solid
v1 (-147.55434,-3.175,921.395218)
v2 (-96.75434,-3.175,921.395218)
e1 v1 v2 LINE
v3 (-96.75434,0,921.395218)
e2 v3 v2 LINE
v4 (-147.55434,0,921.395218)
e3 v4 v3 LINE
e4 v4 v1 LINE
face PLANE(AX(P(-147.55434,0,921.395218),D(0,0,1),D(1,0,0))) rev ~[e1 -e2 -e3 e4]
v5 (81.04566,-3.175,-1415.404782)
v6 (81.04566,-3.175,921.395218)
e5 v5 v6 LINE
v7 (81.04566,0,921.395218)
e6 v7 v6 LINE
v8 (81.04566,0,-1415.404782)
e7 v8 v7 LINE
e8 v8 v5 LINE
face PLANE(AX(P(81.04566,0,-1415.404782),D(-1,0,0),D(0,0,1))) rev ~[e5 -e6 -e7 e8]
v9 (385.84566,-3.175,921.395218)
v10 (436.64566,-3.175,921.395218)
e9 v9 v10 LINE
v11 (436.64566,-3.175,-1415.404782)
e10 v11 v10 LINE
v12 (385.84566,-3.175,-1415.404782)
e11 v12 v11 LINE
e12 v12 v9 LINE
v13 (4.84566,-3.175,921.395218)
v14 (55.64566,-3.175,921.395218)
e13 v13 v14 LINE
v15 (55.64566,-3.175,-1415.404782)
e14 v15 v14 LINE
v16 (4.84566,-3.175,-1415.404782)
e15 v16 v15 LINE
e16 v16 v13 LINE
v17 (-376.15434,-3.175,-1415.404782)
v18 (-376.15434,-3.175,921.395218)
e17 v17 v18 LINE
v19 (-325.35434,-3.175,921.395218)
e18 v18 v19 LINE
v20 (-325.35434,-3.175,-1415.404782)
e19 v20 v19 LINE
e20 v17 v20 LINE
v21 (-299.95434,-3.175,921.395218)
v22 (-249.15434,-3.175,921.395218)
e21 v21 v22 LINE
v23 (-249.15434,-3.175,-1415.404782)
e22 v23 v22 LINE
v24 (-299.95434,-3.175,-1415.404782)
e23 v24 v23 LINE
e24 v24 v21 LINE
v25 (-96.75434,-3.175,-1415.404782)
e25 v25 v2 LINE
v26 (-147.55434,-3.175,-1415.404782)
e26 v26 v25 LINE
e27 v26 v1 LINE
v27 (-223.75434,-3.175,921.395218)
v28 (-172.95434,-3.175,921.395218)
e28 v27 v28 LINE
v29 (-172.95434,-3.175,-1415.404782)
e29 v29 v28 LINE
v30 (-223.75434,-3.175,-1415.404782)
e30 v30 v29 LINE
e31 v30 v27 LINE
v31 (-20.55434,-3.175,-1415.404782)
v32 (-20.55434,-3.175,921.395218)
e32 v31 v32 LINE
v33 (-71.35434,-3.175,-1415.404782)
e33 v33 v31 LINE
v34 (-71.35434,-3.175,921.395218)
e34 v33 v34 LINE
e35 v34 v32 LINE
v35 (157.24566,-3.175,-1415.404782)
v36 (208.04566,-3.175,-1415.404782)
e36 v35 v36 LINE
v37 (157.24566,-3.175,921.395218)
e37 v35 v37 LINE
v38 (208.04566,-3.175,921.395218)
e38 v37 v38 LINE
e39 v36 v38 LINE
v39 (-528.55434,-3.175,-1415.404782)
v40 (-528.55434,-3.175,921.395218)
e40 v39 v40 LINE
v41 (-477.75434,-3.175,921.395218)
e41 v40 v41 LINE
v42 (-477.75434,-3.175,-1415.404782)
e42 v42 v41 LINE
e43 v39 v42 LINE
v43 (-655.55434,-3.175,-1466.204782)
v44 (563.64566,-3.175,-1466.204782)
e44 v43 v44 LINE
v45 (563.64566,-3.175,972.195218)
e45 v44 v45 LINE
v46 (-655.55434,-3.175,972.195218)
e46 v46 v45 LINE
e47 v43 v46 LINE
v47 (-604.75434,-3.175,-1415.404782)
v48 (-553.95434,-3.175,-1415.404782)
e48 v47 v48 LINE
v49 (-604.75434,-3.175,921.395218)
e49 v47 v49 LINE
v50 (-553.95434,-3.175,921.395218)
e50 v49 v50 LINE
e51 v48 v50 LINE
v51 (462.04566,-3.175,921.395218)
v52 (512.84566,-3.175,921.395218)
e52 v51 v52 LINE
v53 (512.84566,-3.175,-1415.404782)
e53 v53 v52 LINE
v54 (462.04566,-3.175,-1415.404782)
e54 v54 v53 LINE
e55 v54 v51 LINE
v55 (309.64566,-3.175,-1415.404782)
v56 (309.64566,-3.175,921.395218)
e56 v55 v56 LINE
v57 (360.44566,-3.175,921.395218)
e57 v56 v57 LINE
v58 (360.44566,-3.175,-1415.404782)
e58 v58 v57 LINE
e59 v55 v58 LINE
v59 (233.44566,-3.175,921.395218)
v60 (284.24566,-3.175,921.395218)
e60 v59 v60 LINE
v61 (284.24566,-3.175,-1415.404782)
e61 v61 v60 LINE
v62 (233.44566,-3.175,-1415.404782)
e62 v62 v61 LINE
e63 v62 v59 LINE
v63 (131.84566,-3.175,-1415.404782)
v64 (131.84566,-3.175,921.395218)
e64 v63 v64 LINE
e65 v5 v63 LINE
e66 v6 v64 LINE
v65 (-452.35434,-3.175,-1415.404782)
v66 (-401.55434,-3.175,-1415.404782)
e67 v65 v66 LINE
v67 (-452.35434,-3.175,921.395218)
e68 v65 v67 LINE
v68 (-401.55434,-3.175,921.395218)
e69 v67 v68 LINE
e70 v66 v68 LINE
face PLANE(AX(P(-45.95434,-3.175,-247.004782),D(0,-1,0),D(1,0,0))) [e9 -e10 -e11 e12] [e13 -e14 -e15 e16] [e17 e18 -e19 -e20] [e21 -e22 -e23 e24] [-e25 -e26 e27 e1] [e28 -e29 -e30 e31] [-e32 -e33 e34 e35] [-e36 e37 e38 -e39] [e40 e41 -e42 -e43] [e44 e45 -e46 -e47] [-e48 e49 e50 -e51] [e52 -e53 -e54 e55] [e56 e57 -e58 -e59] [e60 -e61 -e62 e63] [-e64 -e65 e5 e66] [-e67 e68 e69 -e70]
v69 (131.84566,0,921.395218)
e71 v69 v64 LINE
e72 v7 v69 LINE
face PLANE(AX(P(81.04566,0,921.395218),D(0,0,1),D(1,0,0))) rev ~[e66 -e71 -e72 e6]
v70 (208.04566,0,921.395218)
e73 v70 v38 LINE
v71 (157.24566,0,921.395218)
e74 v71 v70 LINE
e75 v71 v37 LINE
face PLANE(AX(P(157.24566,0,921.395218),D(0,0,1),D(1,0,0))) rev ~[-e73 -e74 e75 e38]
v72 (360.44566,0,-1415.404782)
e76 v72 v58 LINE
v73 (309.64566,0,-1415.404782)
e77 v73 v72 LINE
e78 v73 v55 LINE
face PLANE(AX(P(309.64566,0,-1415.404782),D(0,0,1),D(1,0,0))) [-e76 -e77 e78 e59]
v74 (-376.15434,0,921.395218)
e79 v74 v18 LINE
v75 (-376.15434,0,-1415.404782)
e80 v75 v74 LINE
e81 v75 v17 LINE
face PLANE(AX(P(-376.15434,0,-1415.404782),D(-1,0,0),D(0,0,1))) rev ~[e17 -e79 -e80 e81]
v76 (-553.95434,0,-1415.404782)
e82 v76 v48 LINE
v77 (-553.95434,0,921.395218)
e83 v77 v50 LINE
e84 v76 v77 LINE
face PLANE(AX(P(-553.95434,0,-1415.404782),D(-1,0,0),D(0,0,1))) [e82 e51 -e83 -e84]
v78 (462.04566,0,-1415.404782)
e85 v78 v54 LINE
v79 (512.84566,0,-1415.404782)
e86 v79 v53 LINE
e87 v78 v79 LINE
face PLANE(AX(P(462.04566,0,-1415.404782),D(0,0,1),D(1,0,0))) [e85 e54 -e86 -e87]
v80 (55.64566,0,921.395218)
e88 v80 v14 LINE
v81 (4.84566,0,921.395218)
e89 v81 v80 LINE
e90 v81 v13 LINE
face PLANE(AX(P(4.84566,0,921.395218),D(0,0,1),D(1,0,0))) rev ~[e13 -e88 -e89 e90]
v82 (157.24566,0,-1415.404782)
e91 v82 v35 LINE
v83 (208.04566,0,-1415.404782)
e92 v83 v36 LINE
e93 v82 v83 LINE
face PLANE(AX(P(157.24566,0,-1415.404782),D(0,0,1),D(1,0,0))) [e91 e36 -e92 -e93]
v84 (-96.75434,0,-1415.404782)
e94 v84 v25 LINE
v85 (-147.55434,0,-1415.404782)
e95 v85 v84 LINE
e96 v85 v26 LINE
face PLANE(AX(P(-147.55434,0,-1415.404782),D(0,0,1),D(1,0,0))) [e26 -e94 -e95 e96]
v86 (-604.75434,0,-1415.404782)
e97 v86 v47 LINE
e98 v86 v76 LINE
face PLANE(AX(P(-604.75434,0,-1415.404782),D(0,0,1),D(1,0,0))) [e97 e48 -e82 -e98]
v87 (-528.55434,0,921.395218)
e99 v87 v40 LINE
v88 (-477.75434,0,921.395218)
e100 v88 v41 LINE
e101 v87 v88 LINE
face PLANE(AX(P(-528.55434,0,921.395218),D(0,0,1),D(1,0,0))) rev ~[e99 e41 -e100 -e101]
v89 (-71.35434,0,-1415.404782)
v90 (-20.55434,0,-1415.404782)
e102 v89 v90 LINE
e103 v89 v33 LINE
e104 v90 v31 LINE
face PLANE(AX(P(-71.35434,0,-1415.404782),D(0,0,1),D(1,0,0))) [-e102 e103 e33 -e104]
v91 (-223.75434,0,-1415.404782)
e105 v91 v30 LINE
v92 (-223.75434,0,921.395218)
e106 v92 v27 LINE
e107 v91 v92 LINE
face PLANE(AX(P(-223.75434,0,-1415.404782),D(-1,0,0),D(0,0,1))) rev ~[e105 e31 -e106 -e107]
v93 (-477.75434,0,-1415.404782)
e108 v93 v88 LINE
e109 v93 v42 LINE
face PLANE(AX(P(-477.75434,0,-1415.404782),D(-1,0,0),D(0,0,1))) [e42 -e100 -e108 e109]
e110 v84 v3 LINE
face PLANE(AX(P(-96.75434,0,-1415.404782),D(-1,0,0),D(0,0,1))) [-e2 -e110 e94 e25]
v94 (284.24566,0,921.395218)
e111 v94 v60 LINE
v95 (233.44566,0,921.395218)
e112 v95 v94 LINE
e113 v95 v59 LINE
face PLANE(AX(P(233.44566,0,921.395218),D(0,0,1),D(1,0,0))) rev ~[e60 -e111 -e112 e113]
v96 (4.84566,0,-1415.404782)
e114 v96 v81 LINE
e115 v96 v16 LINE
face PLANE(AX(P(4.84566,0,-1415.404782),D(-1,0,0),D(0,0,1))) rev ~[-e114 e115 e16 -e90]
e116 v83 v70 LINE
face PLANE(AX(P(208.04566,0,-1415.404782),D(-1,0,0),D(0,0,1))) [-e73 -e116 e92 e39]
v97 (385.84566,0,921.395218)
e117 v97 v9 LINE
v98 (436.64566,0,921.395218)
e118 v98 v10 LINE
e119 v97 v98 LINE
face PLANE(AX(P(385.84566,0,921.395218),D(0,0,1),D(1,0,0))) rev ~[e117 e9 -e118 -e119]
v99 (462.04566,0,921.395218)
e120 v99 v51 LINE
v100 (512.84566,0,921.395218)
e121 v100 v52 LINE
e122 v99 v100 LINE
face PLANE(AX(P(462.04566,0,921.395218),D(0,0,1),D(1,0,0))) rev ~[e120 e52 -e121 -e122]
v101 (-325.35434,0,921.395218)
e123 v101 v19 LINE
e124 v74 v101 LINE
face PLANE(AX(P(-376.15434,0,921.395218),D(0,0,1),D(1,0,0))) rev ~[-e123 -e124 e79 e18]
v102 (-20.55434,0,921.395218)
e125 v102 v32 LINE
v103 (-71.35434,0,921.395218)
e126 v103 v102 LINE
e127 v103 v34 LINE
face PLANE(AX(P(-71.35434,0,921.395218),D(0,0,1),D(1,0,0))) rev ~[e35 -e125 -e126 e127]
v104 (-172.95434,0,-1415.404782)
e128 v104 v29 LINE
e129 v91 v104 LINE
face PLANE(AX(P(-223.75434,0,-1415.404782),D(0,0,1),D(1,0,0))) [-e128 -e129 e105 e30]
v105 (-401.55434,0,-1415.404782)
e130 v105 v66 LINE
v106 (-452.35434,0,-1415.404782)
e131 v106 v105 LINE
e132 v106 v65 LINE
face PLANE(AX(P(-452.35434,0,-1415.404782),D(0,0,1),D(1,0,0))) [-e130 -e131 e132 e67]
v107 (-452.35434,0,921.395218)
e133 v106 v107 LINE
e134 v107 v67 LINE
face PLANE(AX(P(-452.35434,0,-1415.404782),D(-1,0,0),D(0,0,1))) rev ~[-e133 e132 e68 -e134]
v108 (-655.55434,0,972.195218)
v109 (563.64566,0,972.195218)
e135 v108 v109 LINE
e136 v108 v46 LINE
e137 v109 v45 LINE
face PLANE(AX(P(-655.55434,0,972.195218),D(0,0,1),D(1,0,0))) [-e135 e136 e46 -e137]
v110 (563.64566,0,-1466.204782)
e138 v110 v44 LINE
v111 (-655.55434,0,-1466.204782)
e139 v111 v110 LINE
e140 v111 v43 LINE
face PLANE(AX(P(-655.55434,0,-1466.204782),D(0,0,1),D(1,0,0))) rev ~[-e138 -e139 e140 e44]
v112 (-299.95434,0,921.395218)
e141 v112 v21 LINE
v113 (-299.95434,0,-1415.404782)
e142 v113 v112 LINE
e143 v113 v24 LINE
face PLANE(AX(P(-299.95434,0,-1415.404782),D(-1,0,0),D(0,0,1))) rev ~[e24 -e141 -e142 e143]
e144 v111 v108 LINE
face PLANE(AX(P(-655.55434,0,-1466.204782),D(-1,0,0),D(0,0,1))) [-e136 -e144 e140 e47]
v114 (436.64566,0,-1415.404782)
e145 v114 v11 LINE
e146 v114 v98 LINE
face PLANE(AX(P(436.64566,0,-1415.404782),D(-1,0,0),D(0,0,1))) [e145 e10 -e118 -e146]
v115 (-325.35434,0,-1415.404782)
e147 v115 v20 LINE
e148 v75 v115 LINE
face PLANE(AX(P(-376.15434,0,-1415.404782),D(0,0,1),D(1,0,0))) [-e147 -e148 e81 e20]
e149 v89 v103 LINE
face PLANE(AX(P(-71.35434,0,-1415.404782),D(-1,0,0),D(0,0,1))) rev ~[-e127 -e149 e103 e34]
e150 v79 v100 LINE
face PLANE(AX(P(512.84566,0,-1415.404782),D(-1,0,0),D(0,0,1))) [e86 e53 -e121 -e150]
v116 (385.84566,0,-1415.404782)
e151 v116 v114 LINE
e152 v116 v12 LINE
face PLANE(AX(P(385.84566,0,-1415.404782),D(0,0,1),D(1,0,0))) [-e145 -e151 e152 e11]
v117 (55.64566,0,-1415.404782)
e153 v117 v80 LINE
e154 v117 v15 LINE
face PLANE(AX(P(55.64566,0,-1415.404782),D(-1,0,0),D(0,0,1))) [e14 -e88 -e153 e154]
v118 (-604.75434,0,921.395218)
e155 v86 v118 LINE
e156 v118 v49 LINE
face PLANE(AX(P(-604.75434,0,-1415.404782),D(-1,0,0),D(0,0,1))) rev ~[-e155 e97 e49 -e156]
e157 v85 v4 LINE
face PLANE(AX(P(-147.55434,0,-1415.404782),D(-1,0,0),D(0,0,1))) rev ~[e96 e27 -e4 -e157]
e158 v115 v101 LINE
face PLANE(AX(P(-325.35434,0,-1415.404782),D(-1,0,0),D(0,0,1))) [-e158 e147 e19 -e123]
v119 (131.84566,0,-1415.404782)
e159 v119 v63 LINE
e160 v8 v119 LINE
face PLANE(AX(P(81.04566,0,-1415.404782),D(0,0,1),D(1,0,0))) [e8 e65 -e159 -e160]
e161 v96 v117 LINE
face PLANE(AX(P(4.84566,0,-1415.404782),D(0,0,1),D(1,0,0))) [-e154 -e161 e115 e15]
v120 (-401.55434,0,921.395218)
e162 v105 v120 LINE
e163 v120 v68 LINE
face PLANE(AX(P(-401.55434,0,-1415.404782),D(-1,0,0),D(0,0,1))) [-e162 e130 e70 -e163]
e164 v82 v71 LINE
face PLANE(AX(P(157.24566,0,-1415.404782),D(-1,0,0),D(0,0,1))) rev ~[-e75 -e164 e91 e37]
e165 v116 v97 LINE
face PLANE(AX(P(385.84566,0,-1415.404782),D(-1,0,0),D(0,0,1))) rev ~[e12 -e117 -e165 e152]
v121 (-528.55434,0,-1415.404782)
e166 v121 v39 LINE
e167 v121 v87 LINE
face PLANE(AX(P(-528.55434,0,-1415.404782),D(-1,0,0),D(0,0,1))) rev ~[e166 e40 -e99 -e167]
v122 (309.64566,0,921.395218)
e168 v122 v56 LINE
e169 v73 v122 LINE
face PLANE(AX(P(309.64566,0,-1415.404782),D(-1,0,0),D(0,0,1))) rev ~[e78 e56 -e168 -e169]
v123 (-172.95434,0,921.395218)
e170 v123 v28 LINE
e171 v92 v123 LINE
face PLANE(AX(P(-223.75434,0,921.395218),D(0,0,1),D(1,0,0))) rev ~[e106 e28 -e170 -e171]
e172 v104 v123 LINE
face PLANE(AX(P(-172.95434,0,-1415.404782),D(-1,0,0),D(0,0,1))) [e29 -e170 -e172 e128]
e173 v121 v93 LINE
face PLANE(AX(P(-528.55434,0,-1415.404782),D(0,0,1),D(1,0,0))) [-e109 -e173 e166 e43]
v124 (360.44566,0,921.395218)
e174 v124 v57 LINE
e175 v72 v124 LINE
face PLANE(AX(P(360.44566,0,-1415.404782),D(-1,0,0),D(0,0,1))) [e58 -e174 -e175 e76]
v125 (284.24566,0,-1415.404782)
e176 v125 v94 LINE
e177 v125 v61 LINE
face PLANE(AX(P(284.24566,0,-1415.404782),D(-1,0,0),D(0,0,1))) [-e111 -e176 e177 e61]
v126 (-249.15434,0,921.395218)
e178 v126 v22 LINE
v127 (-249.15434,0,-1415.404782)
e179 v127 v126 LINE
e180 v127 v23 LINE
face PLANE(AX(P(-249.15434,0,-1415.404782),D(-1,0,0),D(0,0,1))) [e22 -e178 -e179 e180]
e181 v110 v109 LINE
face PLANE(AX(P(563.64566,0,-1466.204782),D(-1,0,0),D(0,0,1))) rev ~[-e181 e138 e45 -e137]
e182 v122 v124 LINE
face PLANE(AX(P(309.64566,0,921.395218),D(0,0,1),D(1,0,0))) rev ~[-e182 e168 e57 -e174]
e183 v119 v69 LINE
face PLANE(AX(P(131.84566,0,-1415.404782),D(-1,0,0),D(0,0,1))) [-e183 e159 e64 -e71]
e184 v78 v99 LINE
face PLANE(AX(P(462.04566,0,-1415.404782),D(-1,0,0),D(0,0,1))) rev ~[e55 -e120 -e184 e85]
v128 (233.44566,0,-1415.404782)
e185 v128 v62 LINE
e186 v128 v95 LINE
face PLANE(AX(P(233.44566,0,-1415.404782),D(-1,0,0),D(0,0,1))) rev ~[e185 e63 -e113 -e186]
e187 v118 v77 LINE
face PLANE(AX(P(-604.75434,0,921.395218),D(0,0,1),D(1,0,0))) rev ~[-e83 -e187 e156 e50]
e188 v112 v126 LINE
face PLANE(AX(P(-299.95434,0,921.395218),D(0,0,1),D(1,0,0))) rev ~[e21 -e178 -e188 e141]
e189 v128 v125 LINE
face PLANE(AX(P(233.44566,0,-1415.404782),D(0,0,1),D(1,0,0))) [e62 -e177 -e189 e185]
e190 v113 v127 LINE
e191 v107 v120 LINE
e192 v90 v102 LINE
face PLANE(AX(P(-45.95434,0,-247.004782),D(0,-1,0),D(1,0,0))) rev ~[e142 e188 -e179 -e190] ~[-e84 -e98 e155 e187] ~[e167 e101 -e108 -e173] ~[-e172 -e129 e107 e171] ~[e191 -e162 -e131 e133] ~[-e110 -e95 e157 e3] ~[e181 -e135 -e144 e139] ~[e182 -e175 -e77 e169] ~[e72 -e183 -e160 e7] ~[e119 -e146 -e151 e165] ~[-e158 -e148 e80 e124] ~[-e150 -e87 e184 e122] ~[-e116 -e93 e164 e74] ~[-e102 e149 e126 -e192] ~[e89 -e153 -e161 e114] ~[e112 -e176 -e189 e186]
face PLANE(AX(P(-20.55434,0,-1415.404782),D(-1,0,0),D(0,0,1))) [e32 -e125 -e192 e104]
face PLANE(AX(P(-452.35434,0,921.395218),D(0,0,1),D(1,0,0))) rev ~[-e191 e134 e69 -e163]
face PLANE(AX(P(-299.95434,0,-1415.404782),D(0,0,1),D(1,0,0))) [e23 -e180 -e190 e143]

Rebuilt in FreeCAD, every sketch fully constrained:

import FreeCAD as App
import Part
import Sketcher
from FreeCAD import Vector
Q = App.Units.Quantity


def add_polygon(sketch, points):
    """Adds a closed chain of lines whose ends are joined by coincident constraints."""
    first, n = sketch.GeometryCount, len(points)
    for a, b in zip(points, points[1:] + points[:1]):
        sketch.addGeometry(Part.LineSegment(App.Vector(*a, 0), App.Vector(*b, 0)), False)
    for i in range(n):
        sketch.addConstraint(Sketcher.Constraint("Coincident", first + i, 2, first + (i + 1) % n, 1))

doc = App.newDocument("Part")
body = doc.addObject("PartDesign::Body", "Body")

sketch1 = doc.addObject("Sketcher::SketchObject", "Sketch")
body.addObject(sketch1)
sketch1.AttachmentSupport = (doc.XZ_Plane, [""])
sketch1.MapMode = "FlatFace"
add_polygon(sketch1, [(-656, 972), (-656, -1466), (564, -1466), (564, 972)])
add_polygon(sketch1, [(-554, -1415), (-605, -1415), (-605, 921), (-554, 921)])
add_polygon(sketch1, [(-478, -1415), (-529, -1415), (-529, 921), (-478, 921)])
add_polygon(sketch1, [(-402, -1415), (-452, -1415), (-452, 921), (-402, 921)])
add_polygon(sketch1, [(-325, -1415), (-376, -1415), (-376, 921), (-325, 921)])
add_polygon(sketch1, [(-249, -1415), (-300, -1415), (-300, 921), (-249, 921)])
add_polygon(sketch1, [(-173, -1415), (-224, -1415), (-224, 921), (-173, 921)])
add_polygon(sketch1, [(-97, -1415), (-148, -1415), (-148, 921), (-97, 921)])
add_polygon(sketch1, [(-21, -1415), (-71, -1415), (-71, 921), (-21, 921)])
add_polygon(sketch1, [(56, -1415), (5, -1415), (5, 921), (56, 921)])
add_polygon(sketch1, [(132, -1415), (81, -1415), (81, 921), (132, 921)])
add_polygon(sketch1, [(208, -1415), (157, -1415), (157, 921), (208, 921)])
add_polygon(sketch1, [(284, -1415), (233, -1415), (233, 921), (284, 921)])
add_polygon(sketch1, [(360, -1415), (310, -1415), (310, 921), (360, 921)])
add_polygon(sketch1, [(437, -1415), (386, -1415), (386, 921), (437, 921)])
add_polygon(sketch1, [(513, -1415), (462, -1415), (462, 921), (513, 921)])
sketch1.addConstraint([
    Sketcher.Constraint("Vertical", 0),
    Sketcher.Constraint("Horizontal", 1),
    Sketcher.Constraint("Vertical", 2),
    Sketcher.Constraint("Horizontal", 3),
    Sketcher.Constraint("Horizontal", 4),
    Sketcher.Constraint("Vertical", 5),
    Sketcher.Constraint("Horizontal", 6),
    Sketcher.Constraint("Vertical", 7),
    Sketcher.Constraint("Horizontal", 8),
    Sketcher.Constraint("Vertical", 9),
    Sketcher.Constraint("Horizontal", 10),
    Sketcher.Constraint("Vertical", 11),
    Sketcher.Constraint("Horizontal", 12),
    Sketcher.Constraint("Vertical", 13),
    Sketcher.Constraint("Horizontal", 14),
    Sketcher.Constraint("Vertical", 15),
    Sketcher.Constraint("Horizontal", 16),
    Sketcher.Constraint("Vertical", 17),
    Sketcher.Constraint("Horizontal", 18),
    Sketcher.Constraint("Vertical", 19),
    Sketcher.Constraint("Horizontal", 20),
    Sketcher.Constraint("Vertical", 21),
    Sketcher.Constraint("Horizontal", 22),
    Sketcher.Constraint("Vertical", 23),
    Sketcher.Constraint("Horizontal", 24),
    Sketcher.Constraint("Vertical", 25),
    Sketcher.Constraint("Horizontal", 26),
    Sketcher.Constraint("Vertical", 27),
    Sketcher.Constraint("Horizontal", 28),
    Sketcher.Constraint("Vertical", 29),
    Sketcher.Constraint("Horizontal", 30),
    Sketcher.Constraint("Vertical", 31),
    Sketcher.Constraint("Horizontal", 32),
    Sketcher.Constraint("Vertical", 33),
    Sketcher.Constraint("Horizontal", 34),
    Sketcher.Constraint("Vertical", 35),
    Sketcher.Constraint("Horizontal", 36),
    Sketcher.Constraint("Vertical", 37),
    Sketcher.Constraint("Horizontal", 38),
    Sketcher.Constraint("Vertical", 39),
    Sketcher.Constraint("Horizontal", 40),
    Sketcher.Constraint("Vertical", 41),
    Sketcher.Constraint("Horizontal", 42),
    Sketcher.Constraint("Vertical", 43),
    Sketcher.Constraint("Horizontal", 44),
    Sketcher.Constraint("Vertical", 45),
    Sketcher.Constraint("Horizontal", 46),
    Sketcher.Constraint("Vertical", 47),
    Sketcher.Constraint("Horizontal", 48),
    Sketcher.Constraint("Vertical", 49),
    Sketcher.Constraint("Horizontal", 50),
    Sketcher.Constraint("Vertical", 51),
    Sketcher.Constraint("Horizontal", 52),
    Sketcher.Constraint("Vertical", 53),
    Sketcher.Constraint("Horizontal", 54),
    Sketcher.Constraint("Vertical", 55),
    Sketcher.Constraint("Horizontal", 56),
    Sketcher.Constraint("Vertical", 57),
    Sketcher.Constraint("Horizontal", 58),
    Sketcher.Constraint("Vertical", 59),
    Sketcher.Constraint("Horizontal", 60),
    Sketcher.Constraint("Vertical", 61),
    Sketcher.Constraint("Horizontal", 62),
    Sketcher.Constraint("Vertical", 63),
    Sketcher.Constraint("Horizontal", 7, 2, 8, 2),
    Sketcher.Constraint("Horizontal", 6, 2, 9, 2),
    Sketcher.Constraint("Horizontal", 11, 2, 12, 2),
    Sketcher.Constraint("Horizontal", 10, 2, 13, 2),
    Sketcher.Constraint("Horizontal", 15, 2, 16, 2),
    Sketcher.Constraint("Horizontal", 14, 2, 17, 2),
    Sketcher.Constraint("Horizontal", 19, 2, 20, 2),
    Sketcher.Constraint("Horizontal", 18, 2, 21, 2),
    Sketcher.Constraint("Horizontal", 23, 2, 24, 2),
    Sketcher.Constraint("Horizontal", 22, 2, 25, 2),
    Sketcher.Constraint("Horizontal", 27, 2, 28, 2),
    Sketcher.Constraint("Horizontal", 26, 2, 29, 2),
    Sketcher.Constraint("Horizontal", 31, 2, 32, 2),
    Sketcher.Constraint("Horizontal", 30, 2, 33, 2),
    Sketcher.Constraint("Horizontal", 35, 2, 36, 2),
    Sketcher.Constraint("Horizontal", 34, 2, 37, 2),
    Sketcher.Constraint("Horizontal", 39, 2, 40, 2),
    Sketcher.Constraint("Horizontal", 38, 2, 41, 2),
    Sketcher.Constraint("Horizontal", 43, 2, 44, 2),
    Sketcher.Constraint("Horizontal", 42, 2, 45, 2),
    Sketcher.Constraint("Horizontal", 47, 2, 48, 2),
    Sketcher.Constraint("Horizontal", 46, 2, 49, 2),
    Sketcher.Constraint("Horizontal", 51, 2, 52, 2),
    Sketcher.Constraint("Horizontal", 50, 2, 53, 2),
    Sketcher.Constraint("Horizontal", 55, 2, 56, 2),
    Sketcher.Constraint("Horizontal", 54, 2, 57, 2),
    Sketcher.Constraint("Horizontal", 59, 2, 60, 2),
    Sketcher.Constraint("Horizontal", 58, 2, 61, 2),
    Sketcher.Constraint("Equal", 6, 8),
    Sketcher.Constraint("Equal", 10, 12),
    Sketcher.Constraint("Equal", 14, 16),
    Sketcher.Constraint("Equal", 18, 20),
    Sketcher.Constraint("Equal", 22, 24),
    Sketcher.Constraint("Equal", 26, 28),
    Sketcher.Constraint("Equal", 30, 32),
    Sketcher.Constraint("Equal", 34, 36),
    Sketcher.Constraint("Equal", 38, 40),
    Sketcher.Constraint("Equal", 42, 44),
    Sketcher.Constraint("Equal", 46, 48),
    Sketcher.Constraint("Equal", 50, 52),
    Sketcher.Constraint("Equal", 54, 56),
    Sketcher.Constraint("Equal", 58, 60),
    Sketcher.Constraint("DistanceX", 1, 1, 1, 2, Q("48 in")),
    Sketcher.Constraint("DistanceX", 4, 2, 4, 1, Q("2 in")),
    Sketcher.Constraint("DistanceY", 0, 2, 0, 1, Q("96 in")),
    Sketcher.Constraint("DistanceY", 5, 1, 5, 2, Q("92 in")),
    Sketcher.Constraint("DistanceX", 0, 2, -1, 1, 655.55434),
    Sketcher.Constraint("DistanceY", 0, 2, -1, 1, 1466.204782),
    Sketcher.Constraint("DistanceX", 4, 2, -1, 1, 604.75434),
    Sketcher.Constraint("DistanceY", 4, 2, -1, 1, 1415.404782),
    Sketcher.Constraint("DistanceX", 8, 2, -1, 1, 528.55434),
    Sketcher.Constraint("DistanceX", 12, 2, -1, 1, 452.35434),
    Sketcher.Constraint("DistanceX", 16, 2, -1, 1, 376.15434),
    Sketcher.Constraint("DistanceX", 20, 2, -1, 1, 299.95434),
    Sketcher.Constraint("DistanceX", 24, 2, -1, 1, 223.75434),
    Sketcher.Constraint("DistanceX", 28, 2, -1, 1, 147.55434),
    Sketcher.Constraint("DistanceX", 32, 2, -1, 1, 71.35434),
    Sketcher.Constraint("DistanceX", -1, 1, 36, 2, 4.84566),
    Sketcher.Constraint("DistanceX", -1, 1, 40, 2, 81.04566),
    Sketcher.Constraint("DistanceX", -1, 1, 44, 2, 157.24566),
    Sketcher.Constraint("DistanceX", -1, 1, 48, 2, 233.44566),
    Sketcher.Constraint("DistanceX", -1, 1, 52, 2, 309.64566),
    Sketcher.Constraint("DistanceX", -1, 1, 56, 2, 385.84566),
    Sketcher.Constraint("DistanceX", -1, 1, 60, 2, 462.04566),
])
pad1 = doc.addObject("PartDesign::Pad", "Pad")
body.addObject(pad1)
pad1.Profile = sketch1
pad1.Length = Q("0.125 in")

doc.recompute()
